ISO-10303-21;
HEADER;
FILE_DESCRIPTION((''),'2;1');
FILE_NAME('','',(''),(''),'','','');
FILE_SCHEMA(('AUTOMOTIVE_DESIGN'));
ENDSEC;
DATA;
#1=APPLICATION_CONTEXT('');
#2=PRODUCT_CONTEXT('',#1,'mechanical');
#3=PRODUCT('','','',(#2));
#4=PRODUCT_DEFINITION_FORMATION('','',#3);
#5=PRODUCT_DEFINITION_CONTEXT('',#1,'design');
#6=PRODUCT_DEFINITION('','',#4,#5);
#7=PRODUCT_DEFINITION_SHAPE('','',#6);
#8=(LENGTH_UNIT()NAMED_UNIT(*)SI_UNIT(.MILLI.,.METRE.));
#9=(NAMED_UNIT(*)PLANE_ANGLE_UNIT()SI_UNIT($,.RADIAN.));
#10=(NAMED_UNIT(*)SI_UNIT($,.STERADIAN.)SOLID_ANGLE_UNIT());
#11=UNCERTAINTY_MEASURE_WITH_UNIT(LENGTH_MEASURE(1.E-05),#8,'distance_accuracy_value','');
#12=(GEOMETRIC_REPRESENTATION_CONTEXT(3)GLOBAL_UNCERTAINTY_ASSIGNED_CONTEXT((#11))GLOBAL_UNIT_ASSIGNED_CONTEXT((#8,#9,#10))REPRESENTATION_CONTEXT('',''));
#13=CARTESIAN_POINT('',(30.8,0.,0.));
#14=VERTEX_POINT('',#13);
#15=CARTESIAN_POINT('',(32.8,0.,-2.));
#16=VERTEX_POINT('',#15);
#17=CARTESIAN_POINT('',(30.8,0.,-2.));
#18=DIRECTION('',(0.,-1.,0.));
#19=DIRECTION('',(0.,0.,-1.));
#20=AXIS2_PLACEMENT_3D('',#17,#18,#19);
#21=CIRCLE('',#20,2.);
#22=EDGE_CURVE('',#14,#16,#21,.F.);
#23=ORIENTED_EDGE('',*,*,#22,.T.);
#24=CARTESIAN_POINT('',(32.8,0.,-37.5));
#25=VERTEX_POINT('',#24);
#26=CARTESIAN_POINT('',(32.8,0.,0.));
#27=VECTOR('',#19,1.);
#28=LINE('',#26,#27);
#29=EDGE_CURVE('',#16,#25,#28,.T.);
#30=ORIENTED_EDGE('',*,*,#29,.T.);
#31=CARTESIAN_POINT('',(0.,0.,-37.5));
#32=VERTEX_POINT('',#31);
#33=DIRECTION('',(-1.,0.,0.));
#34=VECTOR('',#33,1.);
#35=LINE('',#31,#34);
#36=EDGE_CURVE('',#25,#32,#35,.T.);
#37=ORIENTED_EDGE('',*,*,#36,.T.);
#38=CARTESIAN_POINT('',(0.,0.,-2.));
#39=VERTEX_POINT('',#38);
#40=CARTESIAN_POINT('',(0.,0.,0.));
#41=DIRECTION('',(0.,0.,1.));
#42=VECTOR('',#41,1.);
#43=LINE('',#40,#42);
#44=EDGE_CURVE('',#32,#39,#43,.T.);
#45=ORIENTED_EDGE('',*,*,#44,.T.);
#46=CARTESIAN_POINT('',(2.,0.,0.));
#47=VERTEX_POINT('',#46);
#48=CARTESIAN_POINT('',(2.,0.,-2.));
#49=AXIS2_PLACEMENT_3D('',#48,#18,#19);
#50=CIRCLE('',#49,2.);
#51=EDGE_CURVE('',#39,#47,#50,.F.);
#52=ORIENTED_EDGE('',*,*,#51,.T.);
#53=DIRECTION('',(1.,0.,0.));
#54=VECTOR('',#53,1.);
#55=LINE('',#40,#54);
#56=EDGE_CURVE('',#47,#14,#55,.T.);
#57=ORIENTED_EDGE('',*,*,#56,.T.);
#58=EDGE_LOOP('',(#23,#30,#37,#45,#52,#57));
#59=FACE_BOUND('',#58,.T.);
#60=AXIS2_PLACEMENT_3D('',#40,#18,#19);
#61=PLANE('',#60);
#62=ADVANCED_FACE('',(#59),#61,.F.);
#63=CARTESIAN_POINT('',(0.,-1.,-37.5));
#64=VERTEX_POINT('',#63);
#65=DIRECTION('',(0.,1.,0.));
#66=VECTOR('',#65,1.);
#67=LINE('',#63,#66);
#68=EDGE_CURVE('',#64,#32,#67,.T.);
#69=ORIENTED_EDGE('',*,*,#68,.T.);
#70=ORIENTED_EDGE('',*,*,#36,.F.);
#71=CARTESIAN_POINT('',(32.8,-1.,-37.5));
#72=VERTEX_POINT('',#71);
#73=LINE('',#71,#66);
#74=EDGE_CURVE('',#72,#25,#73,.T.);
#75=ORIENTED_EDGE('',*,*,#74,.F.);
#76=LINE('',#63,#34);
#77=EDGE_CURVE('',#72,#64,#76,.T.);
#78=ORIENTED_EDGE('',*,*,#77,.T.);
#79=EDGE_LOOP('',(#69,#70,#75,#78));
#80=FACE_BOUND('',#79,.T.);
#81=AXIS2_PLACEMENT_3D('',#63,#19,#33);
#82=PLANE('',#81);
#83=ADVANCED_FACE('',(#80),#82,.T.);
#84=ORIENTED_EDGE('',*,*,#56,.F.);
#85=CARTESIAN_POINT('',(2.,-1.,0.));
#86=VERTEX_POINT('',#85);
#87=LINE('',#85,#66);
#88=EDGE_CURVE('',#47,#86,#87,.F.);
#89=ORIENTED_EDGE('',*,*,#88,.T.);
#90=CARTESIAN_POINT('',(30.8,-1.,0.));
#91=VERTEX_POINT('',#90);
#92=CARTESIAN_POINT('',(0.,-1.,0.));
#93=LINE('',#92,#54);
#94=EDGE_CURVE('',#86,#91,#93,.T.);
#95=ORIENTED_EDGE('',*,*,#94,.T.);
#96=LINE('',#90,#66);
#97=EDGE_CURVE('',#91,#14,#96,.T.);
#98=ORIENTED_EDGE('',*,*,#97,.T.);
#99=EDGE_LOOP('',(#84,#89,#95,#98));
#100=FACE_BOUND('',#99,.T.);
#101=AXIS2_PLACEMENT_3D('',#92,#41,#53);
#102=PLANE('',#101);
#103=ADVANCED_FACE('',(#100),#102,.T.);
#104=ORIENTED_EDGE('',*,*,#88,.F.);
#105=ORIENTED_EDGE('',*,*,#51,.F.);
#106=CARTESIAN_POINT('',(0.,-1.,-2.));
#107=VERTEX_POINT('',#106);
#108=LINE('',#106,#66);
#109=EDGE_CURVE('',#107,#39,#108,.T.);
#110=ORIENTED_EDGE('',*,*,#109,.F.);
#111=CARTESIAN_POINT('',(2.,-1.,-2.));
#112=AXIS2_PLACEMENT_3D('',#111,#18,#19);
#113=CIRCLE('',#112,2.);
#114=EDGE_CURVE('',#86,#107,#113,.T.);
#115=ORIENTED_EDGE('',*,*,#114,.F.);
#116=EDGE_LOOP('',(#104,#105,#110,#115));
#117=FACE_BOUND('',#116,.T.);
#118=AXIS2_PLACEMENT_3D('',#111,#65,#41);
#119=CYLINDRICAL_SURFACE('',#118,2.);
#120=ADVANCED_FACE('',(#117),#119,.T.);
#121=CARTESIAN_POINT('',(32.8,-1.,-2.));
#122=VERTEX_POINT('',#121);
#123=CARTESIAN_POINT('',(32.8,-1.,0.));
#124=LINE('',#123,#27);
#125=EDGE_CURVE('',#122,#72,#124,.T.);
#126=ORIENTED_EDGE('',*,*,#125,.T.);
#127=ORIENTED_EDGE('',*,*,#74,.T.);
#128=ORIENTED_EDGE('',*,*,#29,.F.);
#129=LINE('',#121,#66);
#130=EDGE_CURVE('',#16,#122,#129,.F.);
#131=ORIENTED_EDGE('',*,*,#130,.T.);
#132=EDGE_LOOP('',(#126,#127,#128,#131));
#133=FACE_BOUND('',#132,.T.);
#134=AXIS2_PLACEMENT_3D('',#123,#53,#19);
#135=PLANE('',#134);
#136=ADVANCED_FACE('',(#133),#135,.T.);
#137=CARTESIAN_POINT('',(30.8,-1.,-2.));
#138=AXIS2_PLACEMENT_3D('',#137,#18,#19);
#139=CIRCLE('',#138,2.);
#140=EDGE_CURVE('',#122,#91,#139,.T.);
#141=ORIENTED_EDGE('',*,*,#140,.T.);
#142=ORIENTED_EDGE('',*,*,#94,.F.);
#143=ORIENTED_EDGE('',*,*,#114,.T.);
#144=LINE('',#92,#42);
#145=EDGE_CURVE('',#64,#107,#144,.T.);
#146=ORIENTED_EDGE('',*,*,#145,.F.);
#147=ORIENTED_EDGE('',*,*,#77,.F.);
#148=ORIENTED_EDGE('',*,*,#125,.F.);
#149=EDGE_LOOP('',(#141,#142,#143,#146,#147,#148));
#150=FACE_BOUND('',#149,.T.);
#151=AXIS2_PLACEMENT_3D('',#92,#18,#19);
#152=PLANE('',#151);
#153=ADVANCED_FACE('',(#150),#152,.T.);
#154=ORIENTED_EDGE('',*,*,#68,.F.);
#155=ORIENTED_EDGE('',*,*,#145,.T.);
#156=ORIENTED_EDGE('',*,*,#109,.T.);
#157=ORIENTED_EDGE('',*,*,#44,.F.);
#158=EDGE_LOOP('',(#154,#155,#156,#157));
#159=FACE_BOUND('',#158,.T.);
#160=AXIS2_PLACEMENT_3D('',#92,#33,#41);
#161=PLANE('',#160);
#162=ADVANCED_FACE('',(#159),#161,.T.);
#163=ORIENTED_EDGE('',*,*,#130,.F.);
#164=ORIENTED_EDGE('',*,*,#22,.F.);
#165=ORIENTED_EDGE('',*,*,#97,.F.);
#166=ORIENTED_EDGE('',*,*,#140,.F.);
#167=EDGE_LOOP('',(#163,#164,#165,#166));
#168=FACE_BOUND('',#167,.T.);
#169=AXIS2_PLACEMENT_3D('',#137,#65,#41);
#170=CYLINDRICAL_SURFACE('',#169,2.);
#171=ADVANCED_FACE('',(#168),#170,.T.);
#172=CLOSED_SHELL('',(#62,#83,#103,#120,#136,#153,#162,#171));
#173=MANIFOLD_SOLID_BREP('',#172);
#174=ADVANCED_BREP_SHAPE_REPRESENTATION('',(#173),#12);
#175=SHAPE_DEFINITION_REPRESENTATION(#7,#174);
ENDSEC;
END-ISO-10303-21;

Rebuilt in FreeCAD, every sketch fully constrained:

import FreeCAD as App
import Part
import Sketcher
from FreeCAD import Vector
Q = App.Units.Quantity


def edges_at(feature, points):
    """Names of the edges that pass closest to the given points."""
    edges = feature.Shape.Edges
    near = lambda p: min(range(len(edges)), key=lambda i: edges[i].distToShape(Part.Vertex(*p))[0])
    return sorted({f"Edge{near(p) + 1}" for p in points})


def add_polygon(sketch, points):
    """Adds a closed chain of lines whose ends are joined by coincident constraints."""
    first, n = sketch.GeometryCount, len(points)
    for a, b in zip(points, points[1:] + points[:1]):
        sketch.addGeometry(Part.LineSegment(App.Vector(*a, 0), App.Vector(*b, 0)), False)
    for i in range(n):
        sketch.addConstraint(Sketcher.Constraint("Coincident", first + i, 2, first + (i + 1) % n, 1))

doc = App.newDocument("Part")
body = doc.addObject("PartDesign::Body", "Body")

# Sketch on XZ plane
sketch1 = doc.addObject("Sketcher::SketchObject", "Sketch")
body.addObject(sketch1)
sketch1.AttachmentSupport = (doc.XZ_Plane, [""])
sketch1.MapMode = "FlatFace"
add_polygon(sketch1, [(0, -38), (0, 0), (33, 0), (33, -38)])  # lines 0-3
sketch1.addConstraint(Sketcher.Constraint("Vertical", 0))
sketch1.addConstraint(Sketcher.Constraint("Horizontal", 1))
sketch1.addConstraint(Sketcher.Constraint("Vertical", 2))
sketch1.addConstraint(Sketcher.Constraint("Horizontal", 3))
sketch1.addConstraint(Sketcher.Constraint("Coincident", 0, 2, -1, 1))
sketch1.addConstraint(Sketcher.Constraint("DistanceX", 1, 1, 1, 2, Q("32.8 mm")))
sketch1.addConstraint(Sketcher.Constraint("DistanceY", 0, 1, 0, 2, Q("37.5 mm")))
pad1 = doc.addObject("PartDesign::Pad", "Pad")
body.addObject(pad1)
pad1.Profile = sketch1
pad1.Length = 1
doc.recompute()

fillet = doc.addObject("PartDesign::Fillet", "Fillet")
body.addObject(fillet)
fillet.Base = (pad1, edges_at(pad1, [(32.8, -0.5, 0), (0, -0.5, 0)]))
fillet.Radius = 2

doc.recompute()
